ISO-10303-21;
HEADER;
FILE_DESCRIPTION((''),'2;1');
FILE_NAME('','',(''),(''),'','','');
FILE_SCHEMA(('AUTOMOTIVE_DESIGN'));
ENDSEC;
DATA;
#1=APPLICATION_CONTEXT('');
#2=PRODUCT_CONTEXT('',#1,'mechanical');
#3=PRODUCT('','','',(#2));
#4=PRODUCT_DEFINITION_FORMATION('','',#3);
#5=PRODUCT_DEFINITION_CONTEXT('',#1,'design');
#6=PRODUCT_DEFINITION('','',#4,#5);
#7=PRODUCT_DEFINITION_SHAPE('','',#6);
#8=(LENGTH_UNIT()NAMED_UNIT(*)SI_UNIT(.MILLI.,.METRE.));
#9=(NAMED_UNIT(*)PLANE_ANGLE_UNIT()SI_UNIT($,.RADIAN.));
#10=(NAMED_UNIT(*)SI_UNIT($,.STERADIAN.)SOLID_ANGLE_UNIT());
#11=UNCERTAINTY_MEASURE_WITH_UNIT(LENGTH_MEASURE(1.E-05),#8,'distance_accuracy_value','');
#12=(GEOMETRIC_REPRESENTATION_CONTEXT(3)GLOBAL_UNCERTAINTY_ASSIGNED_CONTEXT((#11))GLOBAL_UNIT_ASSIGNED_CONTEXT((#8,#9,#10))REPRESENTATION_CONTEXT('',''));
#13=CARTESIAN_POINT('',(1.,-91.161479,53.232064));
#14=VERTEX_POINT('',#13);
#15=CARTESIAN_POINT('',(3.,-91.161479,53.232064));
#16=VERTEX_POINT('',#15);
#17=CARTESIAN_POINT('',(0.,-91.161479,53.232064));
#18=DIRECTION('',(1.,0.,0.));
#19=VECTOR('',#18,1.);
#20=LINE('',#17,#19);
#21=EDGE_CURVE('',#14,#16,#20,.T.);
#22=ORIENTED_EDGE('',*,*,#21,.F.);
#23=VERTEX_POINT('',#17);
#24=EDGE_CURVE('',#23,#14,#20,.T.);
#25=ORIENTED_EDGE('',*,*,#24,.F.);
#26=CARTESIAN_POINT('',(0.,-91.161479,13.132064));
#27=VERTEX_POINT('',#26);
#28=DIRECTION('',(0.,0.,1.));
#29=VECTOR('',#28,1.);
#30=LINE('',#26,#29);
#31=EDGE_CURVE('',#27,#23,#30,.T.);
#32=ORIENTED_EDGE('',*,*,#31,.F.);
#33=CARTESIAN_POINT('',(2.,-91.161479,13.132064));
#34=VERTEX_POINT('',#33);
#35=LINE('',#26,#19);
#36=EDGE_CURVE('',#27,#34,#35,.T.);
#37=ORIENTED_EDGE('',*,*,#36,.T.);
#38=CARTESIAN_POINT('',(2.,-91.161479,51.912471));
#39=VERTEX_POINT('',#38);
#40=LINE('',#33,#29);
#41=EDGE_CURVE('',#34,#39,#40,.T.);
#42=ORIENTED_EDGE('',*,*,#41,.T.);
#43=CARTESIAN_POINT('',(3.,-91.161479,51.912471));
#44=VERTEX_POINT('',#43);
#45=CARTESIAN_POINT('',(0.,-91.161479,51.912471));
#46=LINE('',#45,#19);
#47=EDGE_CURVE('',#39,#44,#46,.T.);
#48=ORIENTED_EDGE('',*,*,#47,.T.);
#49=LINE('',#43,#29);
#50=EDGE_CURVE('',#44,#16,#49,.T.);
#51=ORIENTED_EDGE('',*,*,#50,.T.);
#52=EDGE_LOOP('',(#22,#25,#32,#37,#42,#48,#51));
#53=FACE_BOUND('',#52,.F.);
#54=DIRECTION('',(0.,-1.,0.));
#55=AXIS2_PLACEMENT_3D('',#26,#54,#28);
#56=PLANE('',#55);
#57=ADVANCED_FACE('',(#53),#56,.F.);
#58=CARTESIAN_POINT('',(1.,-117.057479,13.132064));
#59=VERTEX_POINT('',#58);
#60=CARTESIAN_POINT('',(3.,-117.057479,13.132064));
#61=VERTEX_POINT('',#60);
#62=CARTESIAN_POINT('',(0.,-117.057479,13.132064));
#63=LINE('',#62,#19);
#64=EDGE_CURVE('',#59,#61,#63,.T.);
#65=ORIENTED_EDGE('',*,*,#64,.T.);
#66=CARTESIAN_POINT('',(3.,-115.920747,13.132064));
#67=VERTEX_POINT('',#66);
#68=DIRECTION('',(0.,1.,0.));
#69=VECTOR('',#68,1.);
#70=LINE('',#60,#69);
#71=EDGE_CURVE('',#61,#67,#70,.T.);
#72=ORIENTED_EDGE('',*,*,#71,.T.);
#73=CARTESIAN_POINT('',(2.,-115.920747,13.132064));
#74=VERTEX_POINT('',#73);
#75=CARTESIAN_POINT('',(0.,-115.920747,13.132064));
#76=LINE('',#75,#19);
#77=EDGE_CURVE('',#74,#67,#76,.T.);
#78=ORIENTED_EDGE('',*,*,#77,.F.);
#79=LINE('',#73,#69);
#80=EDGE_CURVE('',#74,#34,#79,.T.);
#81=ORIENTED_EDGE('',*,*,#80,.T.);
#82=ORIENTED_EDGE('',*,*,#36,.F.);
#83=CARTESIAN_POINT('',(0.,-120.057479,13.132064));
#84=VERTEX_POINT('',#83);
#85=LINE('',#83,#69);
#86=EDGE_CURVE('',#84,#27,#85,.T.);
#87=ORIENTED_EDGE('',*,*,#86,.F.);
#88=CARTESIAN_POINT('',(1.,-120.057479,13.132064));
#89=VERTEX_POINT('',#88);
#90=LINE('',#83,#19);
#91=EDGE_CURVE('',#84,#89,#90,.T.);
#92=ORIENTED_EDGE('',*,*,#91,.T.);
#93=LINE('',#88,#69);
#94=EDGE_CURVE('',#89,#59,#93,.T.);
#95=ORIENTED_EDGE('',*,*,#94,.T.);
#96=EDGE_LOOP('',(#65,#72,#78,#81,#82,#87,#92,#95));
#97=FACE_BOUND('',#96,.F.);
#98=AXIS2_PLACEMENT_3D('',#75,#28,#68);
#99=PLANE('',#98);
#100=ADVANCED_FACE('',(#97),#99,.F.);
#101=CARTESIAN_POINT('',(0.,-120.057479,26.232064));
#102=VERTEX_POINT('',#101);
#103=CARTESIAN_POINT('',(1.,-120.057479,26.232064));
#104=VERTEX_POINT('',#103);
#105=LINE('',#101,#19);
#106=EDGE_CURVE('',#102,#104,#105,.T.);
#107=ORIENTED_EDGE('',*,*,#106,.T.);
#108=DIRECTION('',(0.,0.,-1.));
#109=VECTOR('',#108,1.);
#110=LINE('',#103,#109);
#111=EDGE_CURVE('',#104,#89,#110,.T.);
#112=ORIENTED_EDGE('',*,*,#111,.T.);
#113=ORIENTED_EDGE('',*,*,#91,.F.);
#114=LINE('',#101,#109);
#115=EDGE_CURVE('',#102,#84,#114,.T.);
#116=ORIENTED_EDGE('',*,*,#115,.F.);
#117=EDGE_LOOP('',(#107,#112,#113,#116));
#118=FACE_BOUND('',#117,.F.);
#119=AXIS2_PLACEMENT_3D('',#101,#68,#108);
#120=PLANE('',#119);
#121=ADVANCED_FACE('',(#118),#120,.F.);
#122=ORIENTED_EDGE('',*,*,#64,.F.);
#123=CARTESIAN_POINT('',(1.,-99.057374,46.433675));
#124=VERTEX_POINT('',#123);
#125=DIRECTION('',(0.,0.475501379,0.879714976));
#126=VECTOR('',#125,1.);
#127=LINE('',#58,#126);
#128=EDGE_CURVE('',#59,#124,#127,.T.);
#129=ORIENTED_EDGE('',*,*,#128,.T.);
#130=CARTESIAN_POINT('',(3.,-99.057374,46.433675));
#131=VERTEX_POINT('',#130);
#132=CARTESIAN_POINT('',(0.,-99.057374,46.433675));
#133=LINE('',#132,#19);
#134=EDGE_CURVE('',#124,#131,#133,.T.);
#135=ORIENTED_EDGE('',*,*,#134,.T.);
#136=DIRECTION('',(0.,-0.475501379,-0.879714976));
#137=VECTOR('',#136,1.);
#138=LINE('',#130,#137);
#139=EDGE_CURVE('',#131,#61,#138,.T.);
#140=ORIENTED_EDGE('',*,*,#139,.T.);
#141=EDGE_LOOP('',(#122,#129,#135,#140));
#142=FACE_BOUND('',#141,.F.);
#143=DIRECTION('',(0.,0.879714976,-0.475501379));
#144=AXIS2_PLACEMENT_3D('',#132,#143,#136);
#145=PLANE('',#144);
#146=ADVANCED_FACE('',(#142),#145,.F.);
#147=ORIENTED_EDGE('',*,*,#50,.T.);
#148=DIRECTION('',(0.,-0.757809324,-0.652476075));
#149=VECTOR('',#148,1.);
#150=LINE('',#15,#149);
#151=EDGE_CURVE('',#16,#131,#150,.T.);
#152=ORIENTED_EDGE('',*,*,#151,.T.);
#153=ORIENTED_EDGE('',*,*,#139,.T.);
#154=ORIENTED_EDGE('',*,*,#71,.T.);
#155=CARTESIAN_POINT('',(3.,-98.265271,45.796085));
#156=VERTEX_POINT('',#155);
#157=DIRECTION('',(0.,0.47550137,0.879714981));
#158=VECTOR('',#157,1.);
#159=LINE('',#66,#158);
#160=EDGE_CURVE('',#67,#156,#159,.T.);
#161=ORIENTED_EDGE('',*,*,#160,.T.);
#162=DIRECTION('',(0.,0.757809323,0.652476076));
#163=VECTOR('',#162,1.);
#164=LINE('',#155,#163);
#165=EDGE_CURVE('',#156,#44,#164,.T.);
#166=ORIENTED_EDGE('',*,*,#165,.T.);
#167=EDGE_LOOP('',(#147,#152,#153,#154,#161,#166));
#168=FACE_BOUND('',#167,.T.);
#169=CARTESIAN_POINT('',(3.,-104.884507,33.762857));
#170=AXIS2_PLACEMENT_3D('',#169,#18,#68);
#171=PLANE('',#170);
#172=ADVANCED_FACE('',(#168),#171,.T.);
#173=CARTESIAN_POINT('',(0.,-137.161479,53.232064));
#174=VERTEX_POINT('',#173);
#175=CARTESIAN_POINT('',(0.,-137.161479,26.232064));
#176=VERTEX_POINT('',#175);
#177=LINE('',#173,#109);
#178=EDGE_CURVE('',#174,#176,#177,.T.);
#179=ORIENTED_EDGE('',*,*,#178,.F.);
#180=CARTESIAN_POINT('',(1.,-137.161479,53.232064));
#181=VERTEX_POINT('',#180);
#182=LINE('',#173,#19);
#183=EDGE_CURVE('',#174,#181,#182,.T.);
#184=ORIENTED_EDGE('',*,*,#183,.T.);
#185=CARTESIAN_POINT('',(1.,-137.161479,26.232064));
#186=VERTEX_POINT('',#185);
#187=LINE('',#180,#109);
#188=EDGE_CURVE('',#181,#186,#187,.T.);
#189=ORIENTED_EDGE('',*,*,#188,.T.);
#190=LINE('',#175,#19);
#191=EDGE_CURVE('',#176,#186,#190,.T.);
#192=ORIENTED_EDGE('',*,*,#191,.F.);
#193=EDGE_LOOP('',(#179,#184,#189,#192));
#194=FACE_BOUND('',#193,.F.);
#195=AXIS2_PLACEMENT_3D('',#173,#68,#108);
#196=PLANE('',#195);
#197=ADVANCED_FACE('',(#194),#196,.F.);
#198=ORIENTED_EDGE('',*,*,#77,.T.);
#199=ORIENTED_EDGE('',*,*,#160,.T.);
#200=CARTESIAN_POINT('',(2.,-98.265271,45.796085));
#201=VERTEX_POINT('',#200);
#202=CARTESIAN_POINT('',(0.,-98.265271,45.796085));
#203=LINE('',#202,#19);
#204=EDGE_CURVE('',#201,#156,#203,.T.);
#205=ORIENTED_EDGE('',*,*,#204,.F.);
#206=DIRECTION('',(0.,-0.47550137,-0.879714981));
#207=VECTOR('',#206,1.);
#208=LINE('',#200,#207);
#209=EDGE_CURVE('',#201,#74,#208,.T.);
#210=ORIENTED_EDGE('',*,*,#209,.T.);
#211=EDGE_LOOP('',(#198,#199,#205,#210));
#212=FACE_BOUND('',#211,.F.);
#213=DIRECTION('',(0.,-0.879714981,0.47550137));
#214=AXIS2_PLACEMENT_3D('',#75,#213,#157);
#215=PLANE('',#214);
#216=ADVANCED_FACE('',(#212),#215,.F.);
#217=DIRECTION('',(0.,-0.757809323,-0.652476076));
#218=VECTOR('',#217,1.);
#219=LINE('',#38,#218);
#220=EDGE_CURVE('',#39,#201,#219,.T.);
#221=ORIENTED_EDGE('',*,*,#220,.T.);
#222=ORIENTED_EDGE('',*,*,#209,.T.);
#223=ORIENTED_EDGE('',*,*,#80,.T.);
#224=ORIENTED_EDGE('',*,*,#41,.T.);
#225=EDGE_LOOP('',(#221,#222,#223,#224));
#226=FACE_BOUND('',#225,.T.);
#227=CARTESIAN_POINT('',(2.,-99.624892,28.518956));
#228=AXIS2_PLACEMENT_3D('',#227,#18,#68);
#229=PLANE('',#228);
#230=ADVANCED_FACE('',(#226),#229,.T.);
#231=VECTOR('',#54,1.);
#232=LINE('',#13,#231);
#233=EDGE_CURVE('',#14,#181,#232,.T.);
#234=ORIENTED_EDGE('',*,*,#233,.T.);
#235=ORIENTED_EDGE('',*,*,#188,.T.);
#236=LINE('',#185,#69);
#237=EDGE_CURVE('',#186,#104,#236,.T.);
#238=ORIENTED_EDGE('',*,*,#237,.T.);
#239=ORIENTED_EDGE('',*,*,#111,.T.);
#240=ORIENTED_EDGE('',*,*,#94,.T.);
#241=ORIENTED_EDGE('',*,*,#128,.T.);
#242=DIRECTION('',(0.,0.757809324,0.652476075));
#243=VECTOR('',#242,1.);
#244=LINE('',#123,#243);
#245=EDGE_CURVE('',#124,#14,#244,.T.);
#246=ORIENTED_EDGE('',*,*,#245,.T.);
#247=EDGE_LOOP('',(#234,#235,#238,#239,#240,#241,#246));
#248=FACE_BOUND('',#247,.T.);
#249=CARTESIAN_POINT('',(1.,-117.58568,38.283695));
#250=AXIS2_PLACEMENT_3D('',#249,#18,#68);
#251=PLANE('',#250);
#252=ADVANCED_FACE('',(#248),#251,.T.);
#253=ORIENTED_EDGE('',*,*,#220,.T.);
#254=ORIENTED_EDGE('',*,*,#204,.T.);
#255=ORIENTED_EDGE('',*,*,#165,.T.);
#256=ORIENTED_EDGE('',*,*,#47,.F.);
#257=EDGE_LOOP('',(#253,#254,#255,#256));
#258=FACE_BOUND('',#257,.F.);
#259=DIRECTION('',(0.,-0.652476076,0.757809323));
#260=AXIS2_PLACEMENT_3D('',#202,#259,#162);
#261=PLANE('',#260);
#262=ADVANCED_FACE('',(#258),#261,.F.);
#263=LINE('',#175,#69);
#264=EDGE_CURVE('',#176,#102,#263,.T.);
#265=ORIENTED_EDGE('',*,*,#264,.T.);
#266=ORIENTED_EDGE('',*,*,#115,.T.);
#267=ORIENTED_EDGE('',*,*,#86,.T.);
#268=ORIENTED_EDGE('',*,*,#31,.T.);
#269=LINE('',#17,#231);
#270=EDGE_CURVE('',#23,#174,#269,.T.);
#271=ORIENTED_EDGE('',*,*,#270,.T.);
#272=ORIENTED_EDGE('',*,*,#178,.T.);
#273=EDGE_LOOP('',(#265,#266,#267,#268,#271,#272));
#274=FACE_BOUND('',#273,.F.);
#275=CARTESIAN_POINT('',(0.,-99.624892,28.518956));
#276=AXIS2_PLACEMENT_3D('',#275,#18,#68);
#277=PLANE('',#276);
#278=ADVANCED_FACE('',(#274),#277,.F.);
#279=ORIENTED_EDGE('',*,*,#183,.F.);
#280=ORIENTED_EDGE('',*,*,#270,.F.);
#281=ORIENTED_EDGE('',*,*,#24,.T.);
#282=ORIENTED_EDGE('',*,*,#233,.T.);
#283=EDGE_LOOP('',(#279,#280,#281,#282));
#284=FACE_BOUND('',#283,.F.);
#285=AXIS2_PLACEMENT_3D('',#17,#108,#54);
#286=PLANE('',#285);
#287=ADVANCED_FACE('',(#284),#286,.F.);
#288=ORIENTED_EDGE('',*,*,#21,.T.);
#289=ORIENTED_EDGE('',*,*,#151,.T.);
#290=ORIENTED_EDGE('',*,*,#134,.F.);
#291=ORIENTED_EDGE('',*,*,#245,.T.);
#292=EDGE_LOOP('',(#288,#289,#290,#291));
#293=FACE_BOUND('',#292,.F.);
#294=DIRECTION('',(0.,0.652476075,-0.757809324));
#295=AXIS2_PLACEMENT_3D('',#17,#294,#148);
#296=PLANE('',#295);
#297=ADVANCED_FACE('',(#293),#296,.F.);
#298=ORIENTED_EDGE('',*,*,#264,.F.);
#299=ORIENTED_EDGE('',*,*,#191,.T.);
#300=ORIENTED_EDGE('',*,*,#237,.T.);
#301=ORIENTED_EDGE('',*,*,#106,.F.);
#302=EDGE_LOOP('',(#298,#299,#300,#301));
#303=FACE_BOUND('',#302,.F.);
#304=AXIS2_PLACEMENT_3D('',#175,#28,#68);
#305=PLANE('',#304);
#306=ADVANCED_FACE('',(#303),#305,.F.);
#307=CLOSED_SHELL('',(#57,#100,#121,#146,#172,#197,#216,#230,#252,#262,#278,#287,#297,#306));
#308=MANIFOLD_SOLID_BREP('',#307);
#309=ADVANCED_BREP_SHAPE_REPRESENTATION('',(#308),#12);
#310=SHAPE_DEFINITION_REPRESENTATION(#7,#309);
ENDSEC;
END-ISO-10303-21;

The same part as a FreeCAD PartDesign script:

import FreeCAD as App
import Part
import Sketcher
Q = App.Units.Quantity

doc = App.newDocument("Part")
params = doc.addObject("Spreadsheet::Sheet", "Params")
for row, (alias, value) in enumerate([
    ("sketch1_width", "46 mm"),
    ("sketch1_width2", "3 mm"),
    ("sketch1_height", "27 mm"),
    ("sketch1_height2", "13.1 mm"),
    ("pad1_length", "1 mm"),
    ("pad2_length", "3 mm"),
    ("pad3_length", "2 mm"),
], start=1):
    params.set(f"A{row}", alias)
    params.set(f"B{row}", "=" + value)
    params.setAlias(f"B{row}", alias)

body = doc.addObject("PartDesign::Body", "Body")

# Sketch on YZ plane
sketch1 = doc.addObject("Sketcher::SketchObject", "Sketch")
body.addObject(sketch1)
sketch1.AttachmentSupport = (doc.YZ_Plane, [""])
sketch1.MapMode = "FlatFace"
sketch1.addGeometry([
    Part.LineSegment(App.Vector(-91.2, 53.2, 0), App.Vector(-137.2, 53.2, 0)),  # 0
    Part.LineSegment(App.Vector(-137.2, 53.2, 0), App.Vector(-137.2, 26.2, 0)),  # 1
    Part.LineSegment(App.Vector(-137.2, 26.2, 0), App.Vector(-120.1, 26.2, 0)),  # 2
    Part.LineSegment(App.Vector(-120.1, 26.2, 0), App.Vector(-120.1, 13.1, 0)),  # 3
    Part.LineSegment(App.Vector(-120.1, 13.1, 0), App.Vector(-117.1, 13.1, 0)),  # 4
    Part.LineSegment(App.Vector(-117.1, 13.1, 0), App.Vector(-99.1, 46.4, 0)),  # 5
    Part.LineSegment(App.Vector(-99.1, 46.4, 0), App.Vector(-91.2, 53.2, 0)),  # 6
], False)
sketch1.addConstraint([
    Sketcher.Constraint("Coincident", 0, 2, 1, 1),
    Sketcher.Constraint("Coincident", 1, 2, 2, 1),
    Sketcher.Constraint("Coincident", 2, 2, 3, 1),
    Sketcher.Constraint("Coincident", 3, 2, 4, 1),
    Sketcher.Constraint("Coincident", 4, 2, 5, 1),
    Sketcher.Constraint("Coincident", 5, 2, 6, 1),
    Sketcher.Constraint("Coincident", 6, 2, 0, 1),
    Sketcher.Constraint("Horizontal", 0),
    Sketcher.Constraint("Vertical", 1),
    Sketcher.Constraint("Horizontal", 2),
    Sketcher.Constraint("Vertical", 3),
    Sketcher.Constraint("Horizontal", 4),
    Sketcher.Constraint("DistanceX", 0, 2, 0, 1, Q("46 mm")),
    Sketcher.Constraint("DistanceX", 4, 1, 4, 2, Q("3 mm")),
    Sketcher.Constraint("DistanceY", 1, 2, 1, 1, Q("27 mm")),
    Sketcher.Constraint("DistanceY", 3, 2, 3, 1, Q("13.1 mm")),
    Sketcher.Constraint("DistanceX", 2, 1, 2, 2, Q("17.104 mm")),
    Sketcher.Constraint("Distance", 5, Q("37.855001 mm")),
    Sketcher.Constraint("Distance", 6, Q("10.419369 mm")),
    Sketcher.Constraint("DistanceX", 0, 2, -1, 1, Q("137.161479 mm")),
    Sketcher.Constraint("DistanceY", -1, 1, 0, 2, Q("53.232064 mm")),
])
sketch1.setExpression("Constraints[12]", "Params.sketch1_width")
sketch1.setExpression("Constraints[13]", "Params.sketch1_width2")
sketch1.setExpression("Constraints[14]", "Params.sketch1_height")
sketch1.setExpression("Constraints[15]", "Params.sketch1_height2")
pad1 = doc.addObject("PartDesign::Pad", "Pad")
body.addObject(pad1)
pad1.Profile = sketch1
pad1.setExpression("Length", "Params.pad1_length")

# Sketch on YZ plane
sketch2 = doc.addObject("Sketcher::SketchObject", "Sketch001")
body.addObject(sketch2)
sketch2.AttachmentSupport = (doc.YZ_Plane, [""])
sketch2.MapMode = "FlatFace"
sketch2.addGeometry([
    Part.LineSegment(App.Vector(-91.2, 51.9, 0), App.Vector(-91.2, 53.2, 0)),  # 0
    Part.LineSegment(App.Vector(-91.2, 53.2, 0), App.Vector(-99.1, 46.4, 0)),  # 1
    Part.LineSegment(App.Vector(-99.1, 46.4, 0), App.Vector(-117.1, 13.1, 0)),  # 2
    Part.LineSegment(App.Vector(-117.1, 13.1, 0), App.Vector(-115.9, 13.1, 0)),  # 3
    Part.LineSegment(App.Vector(-115.9, 13.1, 0), App.Vector(-98.3, 45.8, 0)),  # 4
    Part.LineSegment(App.Vector(-98.3, 45.8, 0), App.Vector(-91.2, 51.9, 0)),  # 5
], False)
sketch2.addConstraint([
    Sketcher.Constraint("Coincident", 0, 2, 1, 1),
    Sketcher.Constraint("Coincident", 1, 2, 2, 1),
    Sketcher.Constraint("Coincident", 2, 2, 3, 1),
    Sketcher.Constraint("Coincident", 3, 2, 4, 1),
    Sketcher.Constraint("Coincident", 4, 2, 5, 1),
    Sketcher.Constraint("Coincident", 5, 2, 0, 1),
    Sketcher.Constraint("Vertical", 0),
    Sketcher.Constraint("Horizontal", 3),
    Sketcher.Constraint("Parallel", 2, 4),
    Sketcher.Constraint("Parallel", 1, 5),
    Sketcher.Constraint("DistanceY", 2, 2, 0, 2, Q("40.1 mm")),
    Sketcher.Constraint("Distance", 2, Q("37.855001 mm")),
    Sketcher.Constraint("DistanceX", 2, 2, 0, 2, Q("25.896 mm")),
    Sketcher.Constraint("DistanceX", 3, 1, 3, 2, Q("1.136732 mm")),
    Sketcher.Constraint("Distance", 1, Q("10.419369 mm")),
    Sketcher.Constraint("Distance", 4, Q("37.130232 mm")),
    Sketcher.Constraint("DistanceX", 0, 2, -1, 1, Q("91.161479 mm")),
    Sketcher.Constraint("DistanceY", -1, 1, 5, 2, Q("51.912471 mm")),
])
pad2 = doc.addObject("PartDesign::Pad", "Pad001")
body.addObject(pad2)
pad2.Profile = sketch2
pad2.setExpression("Length", "Params.pad2_length")

# Sketch on YZ plane
sketch3 = doc.addObject("Sketcher::SketchObject", "Sketch002")
body.addObject(sketch3)
sketch3.AttachmentSupport = (doc.YZ_Plane, [""])
sketch3.MapMode = "FlatFace"
sketch3.addGeometry([
    Part.LineSegment(App.Vector(-91, 52, 0), App.Vector(-98, 46, 0)),
    Part.LineSegment(App.Vector(-98, 46, 0), App.Vector(-116, 13, 0)),
    Part.LineSegment(App.Vector(-116, 13, 0), App.Vector(-91, 13, 0)),
    Part.LineSegment(App.Vector(-91, 13, 0), App.Vector(-91, 52, 0)),
], False)
sketch3.addConstraint([
    Sketcher.Constraint("Coincident", 0, 2, 1, 1),
    Sketcher.Constraint("Coincident", 1, 2, 2, 1),
    Sketcher.Constraint("Coincident", 2, 2, 3, 1),
    Sketcher.Constraint("Coincident", 3, 2, 0, 1),
    Sketcher.Constraint("Horizontal", 2),
    Sketcher.Constraint("Vertical", 3),
    Sketcher.Constraint("DistanceX", 2, 1, 2, 2, Q("24.759268 mm")),
    Sketcher.Constraint("Distance", 1, Q("37.130232 mm")),
    Sketcher.Constraint("DistanceY", 3, 1, 3, 2, Q("38.780407 mm")),
    Sketcher.Constraint("DistanceX", 0, 2, -1, 1, Q("98.265271 mm")),
    Sketcher.Constraint("DistanceX", 2, 2, -1, 1, Q("91.161479 mm")),
    Sketcher.Constraint("DistanceY", -1, 1, 3, 2, Q("51.912471 mm")),
])
pad3 = doc.addObject("PartDesign::Pad", "Pad002")
body.addObject(pad3)
pad3.Profile = sketch3
pad3.setExpression("Length", "Params.pad3_length")

doc.recompute()
